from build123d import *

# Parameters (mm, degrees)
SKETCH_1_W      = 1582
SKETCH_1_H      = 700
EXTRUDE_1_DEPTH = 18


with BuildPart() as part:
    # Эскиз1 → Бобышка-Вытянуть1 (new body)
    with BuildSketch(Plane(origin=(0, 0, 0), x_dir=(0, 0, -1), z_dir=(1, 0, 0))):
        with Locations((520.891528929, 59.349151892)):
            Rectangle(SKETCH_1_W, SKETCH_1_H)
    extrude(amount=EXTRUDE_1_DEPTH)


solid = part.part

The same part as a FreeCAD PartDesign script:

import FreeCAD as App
import Part
import Sketcher
Q = App.Units.Quantity

doc = App.newDocument("Part")
body = doc.addObject("PartDesign::Body", "Body")

# Sketch on YZ plane
sketch1 = body.newObject("Sketcher::SketchObject", "Sketch")
sketch1.AttachmentSupport = (doc.getObject("YZ_Plane"), [""])
sketch1.MapMode = "FlatFace"
sketch1.addGeometry([
    Part.LineSegment(App.Vector(409, 270, 0), App.Vector(-291, 270, 0)),
    Part.LineSegment(App.Vector(-291, 270, 0), App.Vector(-291, -1312, 0)),
    Part.LineSegment(App.Vector(-291, -1312, 0), App.Vector(409, -1312, 0)),
    Part.LineSegment(App.Vector(409, -1312, 0), App.Vector(409, 270, 0)),
], False)
sketch1.addConstraint([
    Sketcher.Constraint("Coincident", 0, 2, 1, 1),
    Sketcher.Constraint("Coincident", 1, 2, 2, 1),
    Sketcher.Constraint("Coincident", 2, 2, 3, 1),
    Sketcher.Constraint("Coincident", 3, 2, 0, 1),
    Sketcher.Constraint("Horizontal", 0),
    Sketcher.Constraint("Vertical", 1),
    Sketcher.Constraint("Horizontal", 2),
    Sketcher.Constraint("Vertical", 3),
    Sketcher.Constraint("DistanceX", 0, 2, 0, 1, Q("700 mm")),
    Sketcher.Constraint("DistanceY", 1, 2, 1, 1, Q("1582 mm")),
    Sketcher.Constraint("DistanceX", 0, 2, -1, 1, Q("290.650848 mm")),
    Sketcher.Constraint("DistanceY", -1, 1, 0, 2, Q("270.108471 mm")),
])
pad1 = body.newObject("PartDesign::Pad", "Pad")
pad1.Profile = sketch1
pad1.Length = 18

doc.recompute()
